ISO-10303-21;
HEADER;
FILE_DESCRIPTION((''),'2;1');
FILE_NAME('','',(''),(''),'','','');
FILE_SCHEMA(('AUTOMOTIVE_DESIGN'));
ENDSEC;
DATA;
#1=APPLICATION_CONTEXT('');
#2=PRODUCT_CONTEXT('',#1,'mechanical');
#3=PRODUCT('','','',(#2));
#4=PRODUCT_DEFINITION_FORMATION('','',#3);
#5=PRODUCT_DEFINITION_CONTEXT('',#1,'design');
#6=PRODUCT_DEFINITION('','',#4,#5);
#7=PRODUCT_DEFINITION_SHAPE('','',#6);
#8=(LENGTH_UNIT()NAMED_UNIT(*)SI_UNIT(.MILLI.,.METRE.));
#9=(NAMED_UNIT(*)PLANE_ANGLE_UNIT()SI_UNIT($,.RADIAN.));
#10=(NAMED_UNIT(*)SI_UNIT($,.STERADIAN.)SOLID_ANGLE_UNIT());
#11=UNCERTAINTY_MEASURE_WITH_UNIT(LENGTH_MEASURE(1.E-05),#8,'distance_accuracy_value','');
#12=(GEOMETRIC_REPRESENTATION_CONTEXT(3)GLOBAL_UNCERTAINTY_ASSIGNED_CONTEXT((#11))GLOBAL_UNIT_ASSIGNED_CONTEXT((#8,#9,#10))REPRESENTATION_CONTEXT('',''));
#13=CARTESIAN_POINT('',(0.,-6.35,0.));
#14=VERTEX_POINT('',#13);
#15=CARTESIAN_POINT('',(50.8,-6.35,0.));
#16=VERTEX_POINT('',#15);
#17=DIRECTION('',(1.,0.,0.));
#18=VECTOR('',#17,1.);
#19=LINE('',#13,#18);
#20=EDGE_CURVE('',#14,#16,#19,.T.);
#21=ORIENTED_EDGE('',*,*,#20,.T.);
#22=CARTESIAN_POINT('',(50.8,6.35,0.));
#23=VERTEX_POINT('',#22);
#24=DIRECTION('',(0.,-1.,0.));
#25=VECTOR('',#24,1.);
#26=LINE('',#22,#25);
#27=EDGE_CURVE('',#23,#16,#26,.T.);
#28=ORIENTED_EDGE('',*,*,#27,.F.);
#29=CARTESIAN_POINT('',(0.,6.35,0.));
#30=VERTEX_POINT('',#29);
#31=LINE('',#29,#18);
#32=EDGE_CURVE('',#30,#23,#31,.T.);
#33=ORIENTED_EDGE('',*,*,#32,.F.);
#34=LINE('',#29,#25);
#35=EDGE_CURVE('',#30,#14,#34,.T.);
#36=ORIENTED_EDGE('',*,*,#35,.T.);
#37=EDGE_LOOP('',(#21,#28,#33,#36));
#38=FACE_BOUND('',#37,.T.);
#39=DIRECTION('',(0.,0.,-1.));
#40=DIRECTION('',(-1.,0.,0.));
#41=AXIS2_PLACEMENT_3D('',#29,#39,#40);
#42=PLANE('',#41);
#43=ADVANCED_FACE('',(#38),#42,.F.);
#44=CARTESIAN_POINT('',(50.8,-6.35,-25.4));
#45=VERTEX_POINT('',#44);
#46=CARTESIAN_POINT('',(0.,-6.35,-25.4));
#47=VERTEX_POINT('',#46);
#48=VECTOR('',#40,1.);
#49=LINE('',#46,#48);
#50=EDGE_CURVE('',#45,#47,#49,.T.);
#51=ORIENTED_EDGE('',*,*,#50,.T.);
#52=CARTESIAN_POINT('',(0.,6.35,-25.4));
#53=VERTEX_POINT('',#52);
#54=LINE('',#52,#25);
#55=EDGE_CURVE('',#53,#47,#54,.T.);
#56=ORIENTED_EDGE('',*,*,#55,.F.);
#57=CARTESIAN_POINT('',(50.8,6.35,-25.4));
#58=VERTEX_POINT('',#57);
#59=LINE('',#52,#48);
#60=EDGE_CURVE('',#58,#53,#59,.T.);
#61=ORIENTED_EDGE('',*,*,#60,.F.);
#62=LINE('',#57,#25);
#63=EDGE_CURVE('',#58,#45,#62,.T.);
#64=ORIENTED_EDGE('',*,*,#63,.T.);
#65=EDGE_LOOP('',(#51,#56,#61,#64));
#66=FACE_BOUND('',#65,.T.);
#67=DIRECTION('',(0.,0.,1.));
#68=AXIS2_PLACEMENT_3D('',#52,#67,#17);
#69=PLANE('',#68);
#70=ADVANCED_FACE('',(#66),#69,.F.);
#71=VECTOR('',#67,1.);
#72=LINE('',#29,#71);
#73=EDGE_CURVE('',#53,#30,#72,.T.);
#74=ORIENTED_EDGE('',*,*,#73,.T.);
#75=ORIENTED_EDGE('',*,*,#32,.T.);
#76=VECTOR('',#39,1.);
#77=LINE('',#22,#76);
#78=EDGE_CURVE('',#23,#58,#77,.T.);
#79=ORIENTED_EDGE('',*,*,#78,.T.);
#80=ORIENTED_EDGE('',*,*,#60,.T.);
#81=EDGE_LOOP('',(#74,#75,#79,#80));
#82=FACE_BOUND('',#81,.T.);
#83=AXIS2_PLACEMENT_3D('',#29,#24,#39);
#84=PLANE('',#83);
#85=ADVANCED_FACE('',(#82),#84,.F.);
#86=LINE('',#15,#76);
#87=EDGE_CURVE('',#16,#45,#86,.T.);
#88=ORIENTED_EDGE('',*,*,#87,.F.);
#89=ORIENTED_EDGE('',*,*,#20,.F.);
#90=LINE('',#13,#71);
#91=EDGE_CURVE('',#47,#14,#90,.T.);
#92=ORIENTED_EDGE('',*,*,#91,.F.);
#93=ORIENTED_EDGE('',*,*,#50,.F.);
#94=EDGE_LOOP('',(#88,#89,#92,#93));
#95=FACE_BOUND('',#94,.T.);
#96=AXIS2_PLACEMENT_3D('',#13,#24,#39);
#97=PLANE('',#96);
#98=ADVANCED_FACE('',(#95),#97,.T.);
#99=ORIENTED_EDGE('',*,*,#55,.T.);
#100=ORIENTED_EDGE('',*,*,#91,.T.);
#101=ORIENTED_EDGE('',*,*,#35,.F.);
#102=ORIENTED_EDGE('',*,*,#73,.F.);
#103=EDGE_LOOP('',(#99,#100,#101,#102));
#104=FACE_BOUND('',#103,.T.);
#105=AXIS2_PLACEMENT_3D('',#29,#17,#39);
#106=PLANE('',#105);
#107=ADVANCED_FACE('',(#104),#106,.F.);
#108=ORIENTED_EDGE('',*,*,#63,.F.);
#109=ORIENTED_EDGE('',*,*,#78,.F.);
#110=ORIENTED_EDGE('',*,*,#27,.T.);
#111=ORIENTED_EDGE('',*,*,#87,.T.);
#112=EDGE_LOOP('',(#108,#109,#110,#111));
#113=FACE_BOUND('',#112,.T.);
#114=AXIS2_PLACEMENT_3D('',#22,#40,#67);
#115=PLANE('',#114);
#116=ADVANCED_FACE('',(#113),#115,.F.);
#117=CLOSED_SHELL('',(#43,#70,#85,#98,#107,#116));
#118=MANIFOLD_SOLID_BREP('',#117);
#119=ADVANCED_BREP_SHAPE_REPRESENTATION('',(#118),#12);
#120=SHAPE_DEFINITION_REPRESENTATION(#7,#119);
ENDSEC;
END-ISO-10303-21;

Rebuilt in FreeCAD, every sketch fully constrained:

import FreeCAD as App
import Part
import Sketcher
Q = App.Units.Quantity


def add_polygon(sketch, points):
    """Adds a closed chain of lines whose ends are joined by coincident constraints."""
    first, n = sketch.GeometryCount, len(points)
    for a, b in zip(points, points[1:] + points[:1]):
        sketch.addGeometry(Part.LineSegment(App.Vector(*a, 0), App.Vector(*b, 0)), False)
    for i in range(n):
        sketch.addConstraint(Sketcher.Constraint("Coincident", first + i, 2, first + (i + 1) % n, 1))

doc = App.newDocument("Part")
body = doc.addObject("PartDesign::Body", "Body")

# Sketch on XZ plane
sketch1 = body.newObject("Sketcher::SketchObject", "Sketch")
sketch1.AttachmentSupport = (doc.getObject("XZ_Plane"), [""])
sketch1.MapMode = "FlatFace"
add_polygon(sketch1, [(0, -25), (0, 0), (51, 0), (51, -25)])  # lines 0-3
sketch1.addConstraint([
    Sketcher.Constraint("Vertical", 0),
    Sketcher.Constraint("Horizontal", 1),
    Sketcher.Constraint("Vertical", 2),
    Sketcher.Constraint("Horizontal", 3),
    Sketcher.Constraint("Coincident", 0, 2, -1, 1),
    Sketcher.Constraint("DistanceX", 1, 1, 1, 2, Q("2 in")),
    Sketcher.Constraint("DistanceY", 0, 1, 0, 2, Q("1 in")),
])
pad1 = body.newObject("PartDesign::Pad", "Pad")
pad1.Profile = sketch1
pad1.Length = Q("0.5 in")
pad1.Midplane = True

doc.recompute()
